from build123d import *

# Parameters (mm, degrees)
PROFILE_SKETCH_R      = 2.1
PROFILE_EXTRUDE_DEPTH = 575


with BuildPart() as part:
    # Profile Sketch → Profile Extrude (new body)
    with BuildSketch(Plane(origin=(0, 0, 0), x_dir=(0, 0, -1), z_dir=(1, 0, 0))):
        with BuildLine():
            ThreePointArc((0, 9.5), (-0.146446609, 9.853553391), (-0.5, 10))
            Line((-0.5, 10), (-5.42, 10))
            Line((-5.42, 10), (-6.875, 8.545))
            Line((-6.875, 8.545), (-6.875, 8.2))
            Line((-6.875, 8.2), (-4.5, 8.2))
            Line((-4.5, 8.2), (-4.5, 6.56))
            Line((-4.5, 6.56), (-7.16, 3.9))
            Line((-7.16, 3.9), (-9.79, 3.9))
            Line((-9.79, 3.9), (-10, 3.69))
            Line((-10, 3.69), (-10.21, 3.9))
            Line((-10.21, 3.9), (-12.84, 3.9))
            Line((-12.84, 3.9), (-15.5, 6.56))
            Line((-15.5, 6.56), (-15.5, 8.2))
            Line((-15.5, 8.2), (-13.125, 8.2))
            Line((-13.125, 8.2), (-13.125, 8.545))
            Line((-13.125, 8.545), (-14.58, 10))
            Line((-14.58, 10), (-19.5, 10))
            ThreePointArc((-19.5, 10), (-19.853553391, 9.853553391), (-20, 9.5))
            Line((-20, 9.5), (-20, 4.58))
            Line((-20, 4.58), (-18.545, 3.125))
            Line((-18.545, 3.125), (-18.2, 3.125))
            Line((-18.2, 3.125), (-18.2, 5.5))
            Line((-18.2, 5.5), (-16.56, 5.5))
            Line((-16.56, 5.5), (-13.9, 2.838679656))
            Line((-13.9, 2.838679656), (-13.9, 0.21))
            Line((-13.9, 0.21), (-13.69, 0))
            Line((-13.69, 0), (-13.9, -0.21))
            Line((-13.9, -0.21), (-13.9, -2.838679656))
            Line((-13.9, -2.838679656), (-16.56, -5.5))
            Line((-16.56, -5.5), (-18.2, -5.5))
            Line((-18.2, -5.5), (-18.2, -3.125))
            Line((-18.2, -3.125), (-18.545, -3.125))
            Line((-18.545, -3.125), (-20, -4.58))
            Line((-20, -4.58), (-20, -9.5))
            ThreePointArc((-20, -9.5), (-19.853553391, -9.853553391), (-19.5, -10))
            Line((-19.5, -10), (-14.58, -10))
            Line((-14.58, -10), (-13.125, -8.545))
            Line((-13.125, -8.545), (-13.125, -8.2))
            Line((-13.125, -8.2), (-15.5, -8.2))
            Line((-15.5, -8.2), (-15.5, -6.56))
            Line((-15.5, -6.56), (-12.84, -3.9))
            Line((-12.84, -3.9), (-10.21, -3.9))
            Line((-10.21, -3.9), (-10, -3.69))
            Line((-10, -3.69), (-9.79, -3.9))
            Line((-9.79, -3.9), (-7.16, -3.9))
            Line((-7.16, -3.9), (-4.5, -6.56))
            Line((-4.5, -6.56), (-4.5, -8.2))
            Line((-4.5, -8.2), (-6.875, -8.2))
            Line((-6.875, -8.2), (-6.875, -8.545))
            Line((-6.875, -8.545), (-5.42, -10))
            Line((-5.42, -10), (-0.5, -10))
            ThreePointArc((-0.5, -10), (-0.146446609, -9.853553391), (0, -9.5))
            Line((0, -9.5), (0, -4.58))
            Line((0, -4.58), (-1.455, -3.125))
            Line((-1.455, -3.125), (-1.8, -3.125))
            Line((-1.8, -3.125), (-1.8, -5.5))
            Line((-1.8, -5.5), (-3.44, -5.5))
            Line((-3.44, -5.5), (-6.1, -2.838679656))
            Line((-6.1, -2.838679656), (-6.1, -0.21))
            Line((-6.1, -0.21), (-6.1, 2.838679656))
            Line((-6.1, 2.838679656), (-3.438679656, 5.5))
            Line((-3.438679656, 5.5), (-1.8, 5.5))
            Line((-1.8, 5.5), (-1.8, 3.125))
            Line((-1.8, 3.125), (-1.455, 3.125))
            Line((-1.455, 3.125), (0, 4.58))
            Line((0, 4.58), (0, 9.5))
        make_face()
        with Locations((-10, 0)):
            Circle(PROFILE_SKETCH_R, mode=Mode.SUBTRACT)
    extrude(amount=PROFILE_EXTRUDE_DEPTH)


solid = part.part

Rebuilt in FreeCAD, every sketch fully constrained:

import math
import FreeCAD as App
import Part
import Sketcher
from FreeCAD import Vector

doc = App.newDocument("Part")
body = doc.addObject("PartDesign::Body", "Body")

# Sketch on YZ plane
sketch1 = body.newObject("Sketcher::SketchObject", "Sketch")
sketch1.AttachmentSupport = (doc.getObject("YZ_Plane"), [""])
sketch1.MapMode = "FlatFace"
sketch1.addGeometry([
    Part.ArcOfCircle(Part.Circle(Vector(9.5, 0.5, 0), Vector(0, 0, 1), 0.5), math.radians(-90), math.radians(0)),  # 0
    Part.LineSegment(Vector(10, 0.5, 0), Vector(10, 5.42, 0)),  # 1
    Part.LineSegment(Vector(10, 5.42, 0), Vector(8.54, 6.88, 0)),  # 2
    Part.LineSegment(Vector(8.54, 6.88, 0), Vector(8.2, 6.88, 0)),  # 3
    Part.LineSegment(Vector(8.2, 6.88, 0), Vector(8.2, 4.5, 0)),  # 4
    Part.LineSegment(Vector(8.2, 4.5, 0), Vector(6.56, 4.5, 0)),  # 5
    Part.LineSegment(Vector(6.56, 4.5, 0), Vector(3.9, 7.16, 0)),  # 6
    Part.LineSegment(Vector(3.9, 7.16, 0), Vector(3.9, 9.79, 0)),  # 7
    Part.LineSegment(Vector(3.9, 9.79, 0), Vector(3.69, 10, 0)),  # 8
    Part.LineSegment(Vector(3.69, 10, 0), Vector(3.9, 10.21, 0)),  # 9
    Part.LineSegment(Vector(3.9, 10.21, 0), Vector(3.9, 12.84, 0)),  # 10
    Part.LineSegment(Vector(3.9, 12.84, 0), Vector(6.56, 15.5, 0)),  # 11
    Part.LineSegment(Vector(6.56, 15.5, 0), Vector(8.2, 15.5, 0)),  # 12
    Part.LineSegment(Vector(8.2, 15.5, 0), Vector(8.2, 13.12, 0)),  # 13
    Part.LineSegment(Vector(8.2, 13.12, 0), Vector(8.54, 13.12, 0)),  # 14
    Part.LineSegment(Vector(8.54, 13.12, 0), Vector(10, 14.58, 0)),  # 15
    Part.LineSegment(Vector(10, 14.58, 0), Vector(10, 19.5, 0)),  # 16
    Part.ArcOfCircle(Part.Circle(Vector(9.5, 19.5, 0), Vector(0, 0, 1), 0.5), math.radians(0), math.radians(90)),  # 17
    Part.LineSegment(Vector(9.5, 20, 0), Vector(4.58, 20, 0)),  # 18
    Part.LineSegment(Vector(4.58, 20, 0), Vector(3.12, 18.55, 0)),  # 19
    Part.LineSegment(Vector(3.12, 18.55, 0), Vector(3.12, 18.2, 0)),  # 20
    Part.LineSegment(Vector(3.12, 18.2, 0), Vector(5.5, 18.2, 0)),  # 21
    Part.LineSegment(Vector(5.5, 18.2, 0), Vector(5.5, 16.56, 0)),  # 22
    Part.LineSegment(Vector(5.5, 16.56, 0), Vector(2.84, 13.9, 0)),  # 23
    Part.LineSegment(Vector(2.84, 13.9, 0), Vector(0.21, 13.9, 0)),  # 24
    Part.LineSegment(Vector(0.21, 13.9, 0), Vector(0, 13.69, 0)),  # 25
    Part.LineSegment(Vector(0, 13.69, 0), Vector(-0.21, 13.9, 0)),  # 26
    Part.LineSegment(Vector(-0.21, 13.9, 0), Vector(-2.84, 13.9, 0)),  # 27
    Part.LineSegment(Vector(-2.84, 13.9, 0), Vector(-5.5, 16.56, 0)),  # 28
    Part.LineSegment(Vector(-5.5, 16.56, 0), Vector(-5.5, 18.2, 0)),  # 29
    Part.LineSegment(Vector(-5.5, 18.2, 0), Vector(-3.12, 18.2, 0)),  # 30
    Part.LineSegment(Vector(-3.12, 18.2, 0), Vector(-3.12, 18.55, 0)),  # 31
    Part.LineSegment(Vector(-3.12, 18.55, 0), Vector(-4.58, 20, 0)),  # 32
    Part.LineSegment(Vector(-4.58, 20, 0), Vector(-9.5, 20, 0)),  # 33
    Part.ArcOfCircle(Part.Circle(Vector(-9.5, 19.5, 0), Vector(0, 0, 1), 0.5), math.radians(90), math.radians(180)),  # 34
    Part.LineSegment(Vector(-10, 19.5, 0), Vector(-10, 14.58, 0)),  # 35
    Part.LineSegment(Vector(-10, 14.58, 0), Vector(-8.54, 13.12, 0)),  # 36
    Part.LineSegment(Vector(-8.54, 13.12, 0), Vector(-8.2, 13.12, 0)),  # 37
    Part.LineSegment(Vector(-8.2, 13.12, 0), Vector(-8.2, 15.5, 0)),  # 38
    Part.LineSegment(Vector(-8.2, 15.5, 0), Vector(-6.56, 15.5, 0)),  # 39
    Part.LineSegment(Vector(-6.56, 15.5, 0), Vector(-3.9, 12.84, 0)),  # 40
    Part.LineSegment(Vector(-3.9, 12.84, 0), Vector(-3.9, 10.21, 0)),  # 41
    Part.LineSegment(Vector(-3.9, 10.21, 0), Vector(-3.69, 10, 0)),  # 42
    Part.LineSegment(Vector(-3.69, 10, 0), Vector(-3.9, 9.79, 0)),  # 43
    Part.LineSegment(Vector(-3.9, 9.79, 0), Vector(-3.9, 7.16, 0)),  # 44
    Part.LineSegment(Vector(-3.9, 7.16, 0), Vector(-6.56, 4.5, 0)),  # 45
    Part.LineSegment(Vector(-6.56, 4.5, 0), Vector(-8.2, 4.5, 0)),  # 46
    Part.LineSegment(Vector(-8.2, 4.5, 0), Vector(-8.2, 6.88, 0)),  # 47
    Part.LineSegment(Vector(-8.2, 6.88, 0), Vector(-8.54, 6.88, 0)),  # 48
    Part.LineSegment(Vector(-8.54, 6.88, 0), Vector(-10, 5.42, 0)),  # 49
    Part.LineSegment(Vector(-10, 5.42, 0), Vector(-10, 0.5, 0)),  # 50
    Part.ArcOfCircle(Part.Circle(Vector(-9.5, 0.5, 0), Vector(0, 0, 1), 0.5), math.radians(180), math.radians(270)),  # 51
    Part.LineSegment(Vector(-9.5, 0, 0), Vector(-4.58, 0, 0)),  # 52
    Part.LineSegment(Vector(-4.58, 0, 0), Vector(-3.12, 1.46, 0)),  # 53
    Part.LineSegment(Vector(-3.12, 1.46, 0), Vector(-3.12, 1.8, 0)),  # 54
    Part.LineSegment(Vector(-3.12, 1.8, 0), Vector(-5.5, 1.8, 0)),  # 55
    Part.LineSegment(Vector(-5.5, 1.8, 0), Vector(-5.5, 3.44, 0)),  # 56
    Part.LineSegment(Vector(-5.5, 3.44, 0), Vector(-2.84, 6.1, 0)),  # 57
    Part.LineSegment(Vector(-2.84, 6.1, 0), Vector(2.84, 6.1, 0)),  # 58
    Part.LineSegment(Vector(2.84, 6.1, 0), Vector(5.5, 3.44, 0)),  # 59
    Part.LineSegment(Vector(5.5, 3.44, 0), Vector(5.5, 1.8, 0)),  # 60
    Part.LineSegment(Vector(5.5, 1.8, 0), Vector(3.12, 1.8, 0)),  # 61
    Part.LineSegment(Vector(3.12, 1.8, 0), Vector(3.12, 1.46, 0)),  # 62
    Part.LineSegment(Vector(3.12, 1.46, 0), Vector(4.58, 0, 0)),  # 63
    Part.LineSegment(Vector(4.58, 0, 0), Vector(9.5, 0, 0)),  # 64
    Part.Circle(Vector(0, 10, 0), Vector(0, 0, 1), 2.1),  # 65
], False)
sketch1.addConstraint([
    Sketcher.Constraint("Tangent", 0, 2, 1, 1),
    Sketcher.Constraint("Coincident", 1, 2, 2, 1),
    Sketcher.Constraint("Coincident", 2, 2, 3, 1),
    Sketcher.Constraint("Coincident", 3, 2, 4, 1),
    Sketcher.Constraint("Coincident", 4, 2, 5, 1),
    Sketcher.Constraint("Coincident", 5, 2, 6, 1),
    Sketcher.Constraint("Coincident", 6, 2, 7, 1),
    Sketcher.Constraint("Coincident", 7, 2, 8, 1),
    Sketcher.Constraint("Coincident", 8, 2, 9, 1),
    Sketcher.Constraint("Coincident", 9, 2, 10, 1),
    Sketcher.Constraint("Coincident", 10, 2, 11, 1),
    Sketcher.Constraint("Coincident", 11, 2, 12, 1),
    Sketcher.Constraint("Coincident", 12, 2, 13, 1),
    Sketcher.Constraint("Coincident", 13, 2, 14, 1),
    Sketcher.Constraint("Coincident", 14, 2, 15, 1),
    Sketcher.Constraint("Coincident", 15, 2, 16, 1),
    Sketcher.Constraint("Tangent", 16, 2, 17, 1),
    Sketcher.Constraint("Tangent", 17, 2, 18, 1),
    Sketcher.Constraint("Coincident", 18, 2, 19, 1),
    Sketcher.Constraint("Coincident", 19, 2, 20, 1),
    Sketcher.Constraint("Coincident", 20, 2, 21, 1),
    Sketcher.Constraint("Coincident", 21, 2, 22, 1),
    Sketcher.Constraint("Coincident", 22, 2, 23, 1),
    Sketcher.Constraint("Coincident", 23, 2, 24, 1),
    Sketcher.Constraint("Coincident", 24, 2, 25, 1),
    Sketcher.Constraint("Coincident", 25, 2, 26, 1),
    Sketcher.Constraint("Coincident", 26, 2, 27, 1),
    Sketcher.Constraint("Coincident", 27, 2, 28, 1),
    Sketcher.Constraint("Coincident", 28, 2, 29, 1),
    Sketcher.Constraint("Coincident", 29, 2, 30, 1),
    Sketcher.Constraint("Coincident", 30, 2, 31, 1),
    Sketcher.Constraint("Coincident", 31, 2, 32, 1),
    Sketcher.Constraint("Coincident", 32, 2, 33, 1),
    Sketcher.Constraint("Tangent", 33, 2, 34, 1),
    Sketcher.Constraint("Tangent", 34, 2, 35, 1),
    Sketcher.Constraint("Coincident", 35, 2, 36, 1),
    Sketcher.Constraint("Coincident", 36, 2, 37, 1),
    Sketcher.Constraint("Coincident", 37, 2, 38, 1),
    Sketcher.Constraint("Coincident", 38, 2, 39, 1),
    Sketcher.Constraint("Coincident", 39, 2, 40, 1),
    Sketcher.Constraint("Coincident", 40, 2, 41, 1),
    Sketcher.Constraint("Coincident", 41, 2, 42, 1),
    Sketcher.Constraint("Coincident", 42, 2, 43, 1),
    Sketcher.Constraint("Coincident", 43, 2, 44, 1),
    Sketcher.Constraint("Coincident", 44, 2, 45, 1),
    Sketcher.Constraint("Coincident", 45, 2, 46, 1),
    Sketcher.Constraint("Coincident", 46, 2, 47, 1),
    Sketcher.Constraint("Coincident", 47, 2, 48, 1),
    Sketcher.Constraint("Coincident", 48, 2, 49, 1),
    Sketcher.Constraint("Coincident", 49, 2, 50, 1),
    Sketcher.Constraint("Tangent", 50, 2, 51, 1),
    Sketcher.Constraint("Tangent", 51, 2, 52, 1),
    Sketcher.Constraint("Coincident", 52, 2, 53, 1),
    Sketcher.Constraint("Coincident", 53, 2, 54, 1),
    Sketcher.Constraint("Coincident", 54, 2, 55, 1),
    Sketcher.Constraint("Coincident", 55, 2, 56, 1),
    Sketcher.Constraint("Coincident", 56, 2, 57, 1),
    Sketcher.Constraint("Coincident", 57, 2, 58, 1),
    Sketcher.Constraint("Coincident", 58, 2, 59, 1),
    Sketcher.Constraint("Coincident", 59, 2, 60, 1),
    Sketcher.Constraint("Coincident", 60, 2, 61, 1),
    Sketcher.Constraint("Coincident", 61, 2, 62, 1),
    Sketcher.Constraint("Coincident", 62, 2, 63, 1),
    Sketcher.Constraint("Coincident", 63, 2, 64, 1),
    Sketcher.Constraint("Tangent", 64, 2, 0, 1),
    Sketcher.Constraint("Vertical", 1),
    Sketcher.Constraint("Horizontal", 3),
    Sketcher.Constraint("Vertical", 4),
    Sketcher.Constraint("Horizontal", 5),
    Sketcher.Constraint("Vertical", 7),
    Sketcher.Constraint("Vertical", 10),
    Sketcher.Constraint("Horizontal", 12),
    Sketcher.Constraint("Vertical", 13),
    Sketcher.Constraint("Horizontal", 14),
    Sketcher.Constraint("Vertical", 16),
    Sketcher.Constraint("Horizontal", 18),
    Sketcher.Constraint("Vertical", 20),
    Sketcher.Constraint("Horizontal", 21),
    Sketcher.Constraint("Vertical", 22),
    Sketcher.Constraint("Horizontal", 24),
    Sketcher.Constraint("Horizontal", 27),
    Sketcher.Constraint("Vertical", 29),
    Sketcher.Constraint("Horizontal", 30),
    Sketcher.Constraint("Vertical", 31),
    Sketcher.Constraint("Horizontal", 33),
    Sketcher.Constraint("Vertical", 35),
    Sketcher.Constraint("Horizontal", 37),
    Sketcher.Constraint("Vertical", 38),
    Sketcher.Constraint("Horizontal", 39),
    Sketcher.Constraint("Vertical", 41),
    Sketcher.Constraint("Vertical", 44),
    Sketcher.Constraint("Horizontal", 46),
    Sketcher.Constraint("Vertical", 47),
    Sketcher.Constraint("Horizontal", 48),
    Sketcher.Constraint("Vertical", 50),
    Sketcher.Constraint("Horizontal", 52),
    Sketcher.Constraint("Vertical", 54),
    Sketcher.Constraint("Horizontal", 55),
    Sketcher.Constraint("Vertical", 56),
    Sketcher.Constraint("Horizontal", 58),
    Sketcher.Constraint("Vertical", 60),
    Sketcher.Constraint("Horizontal", 61),
    Sketcher.Constraint("Vertical", 62),
    Sketcher.Constraint("Horizontal", 64),
    Sketcher.Constraint("Equal", 0, 17),
    Sketcher.Constraint("Equal", 17, 34),
    Sketcher.Constraint("Equal", 34, 51),
    Sketcher.Constraint("Symmetric", 52, 2, 63, 2, -1, 1),
    Sketcher.Constraint("Symmetric", 17, 3, 34, 3, -2),
    Sketcher.Constraint("Symmetric", 0, 3, 51, 3, -2),
    Sketcher.Constraint("Symmetric", 24, 2, 26, 2, -2),
    Sketcher.Constraint("Symmetric", 22, 2, 28, 2, -2),
    Sketcher.Constraint("Symmetric", 20, 2, 30, 2, -2),
    Sketcher.Constraint("Symmetric", 14, 2, 36, 2, -2),
    Sketcher.Constraint("Symmetric", 12, 2, 38, 2, -2),
    Sketcher.Constraint("Symmetric", 10, 2, 40, 2, -2),
    Sketcher.Constraint("Symmetric", 8, 2, 42, 2, -2),
    Sketcher.Constraint("Symmetric", 7, 2, 43, 2, -2),
    Sketcher.Constraint("Symmetric", 5, 2, 45, 2, -2),
    Sketcher.Constraint("Symmetric", 3, 2, 47, 2, -2),
    Sketcher.Constraint("Symmetric", 55, 2, 60, 2, -2),
    Sketcher.Constraint("Symmetric", 53, 2, 62, 2, -2),
    Sketcher.Constraint("PointOnObject", 65, 3, -2),
    Sketcher.Constraint("PointOnObject", 25, 2, -2),
    Sketcher.Constraint("Parallel", 2, 6),
    Sketcher.Constraint("Parallel", 6, 8),
    Sketcher.Constraint("Perpendicular", 8, 9),
    Sketcher.Constraint("Parallel", 9, 11),
    Sketcher.Constraint("Parallel", 11, 15),
    Sketcher.Constraint("Parallel", 15, 19),
    Sketcher.Constraint("Parallel", 19, 25),
    Sketcher.Constraint("Perpendicular", 25, 26),
    Sketcher.Constraint("Parallel", 26, 32),
    Sketcher.Constraint("Parallel", 32, 36),
    Sketcher.Constraint("Parallel", 36, 40),
    Sketcher.Constraint("Parallel", 40, 42),
    Sketcher.Constraint("Parallel", 43, 45),
    Sketcher.Constraint("Parallel", 45, 49),
    Sketcher.Constraint("Parallel", 49, 53),
    Sketcher.Constraint("Parallel", 23, 57),
    Sketcher.Constraint("Perpendicular", 53, 59),
    Sketcher.Constraint("Horizontal", 65, 3, 8, 2),
    Sketcher.Constraint("Horizontal", 19, 2, 31, 2),
    Sketcher.Constraint("Horizontal", 1, 2, 49, 2),
    Sketcher.Constraint("Vertical", 0, 3, 17, 3),
    Sketcher.Constraint("Vertical", 7, 2, 9, 2),
    Sketcher.Constraint("Vertical", 5, 2, 11, 2),
    Sketcher.Constraint("Vertical", 4, 2, 12, 2),
    Sketcher.Constraint("Vertical", 2, 2, 14, 2),
    Sketcher.Constraint("Vertical", 32, 2, 52, 2),
    Sketcher.Constraint("Vertical", 31, 2, 53, 2),
    Sketcher.Constraint("Vertical", 29, 2, 55, 2),
    Sketcher.Constraint("Vertical", 27, 2, 57, 2),
    Sketcher.Constraint("Vertical", 23, 2, 58, 2),
    Sketcher.Constraint("Equal", 24, 27),
    Sketcher.Constraint("Equal", 64, 1),
    Sketcher.Constraint("Equal", 61, 4),
    Sketcher.Constraint("Equal", 7, 10),
    Sketcher.Constraint("Equal", 4, 13),
    Sketcher.Constraint("Equal", 1, 16),
    Sketcher.Constraint("Equal", 48, 20),
    Sketcher.Constraint("Equal", 46, 22),
    Sketcher.Constraint("Equal", 31, 54),
    Sketcher.Constraint("Equal", 29, 56),
    Sketcher.Constraint("Equal", 15, 19),
    Sketcher.Constraint("Equal", 9, 25),
    Sketcher.Constraint("Diameter", 65, 4.2),
    Sketcher.Constraint("Radius", 0, 0.5),
    Sketcher.Constraint("DistanceY", -1, 1, 65, 3, 10.0),
    Sketcher.Constraint("DistanceX", -1, 1, 0, 2, 10.0),
    Sketcher.Constraint("DistanceX", 5, 2, 5, 1, 1.64),
    Sketcher.Constraint("DistanceX", 18, 2, 18, 1, 4.92),
    Sketcher.Constraint("DistanceY", 7, 1, 7, 2, 2.63),
    Sketcher.Constraint("DistanceX", -1, 1, 3, 2, 8.2),
    Sketcher.Constraint("DistanceY", -1, 1, 4, 2, 4.5),
    Sketcher.Constraint("DistanceX", -1, 1, 6, 2, 3.9),
    Sketcher.Constraint("DistanceY", -1, 1, 23, 2, 13.9),
    Sketcher.Constraint("DistanceX", 3, 2, 3, 1, 0.345),
    Sketcher.Constraint("DistanceX", 24, 2, 24, 1, 2.62868),
])
pad1 = body.newObject("PartDesign::Pad", "Pad")
pad1.Profile = sketch1
pad1.Length = 575

doc.recompute()
